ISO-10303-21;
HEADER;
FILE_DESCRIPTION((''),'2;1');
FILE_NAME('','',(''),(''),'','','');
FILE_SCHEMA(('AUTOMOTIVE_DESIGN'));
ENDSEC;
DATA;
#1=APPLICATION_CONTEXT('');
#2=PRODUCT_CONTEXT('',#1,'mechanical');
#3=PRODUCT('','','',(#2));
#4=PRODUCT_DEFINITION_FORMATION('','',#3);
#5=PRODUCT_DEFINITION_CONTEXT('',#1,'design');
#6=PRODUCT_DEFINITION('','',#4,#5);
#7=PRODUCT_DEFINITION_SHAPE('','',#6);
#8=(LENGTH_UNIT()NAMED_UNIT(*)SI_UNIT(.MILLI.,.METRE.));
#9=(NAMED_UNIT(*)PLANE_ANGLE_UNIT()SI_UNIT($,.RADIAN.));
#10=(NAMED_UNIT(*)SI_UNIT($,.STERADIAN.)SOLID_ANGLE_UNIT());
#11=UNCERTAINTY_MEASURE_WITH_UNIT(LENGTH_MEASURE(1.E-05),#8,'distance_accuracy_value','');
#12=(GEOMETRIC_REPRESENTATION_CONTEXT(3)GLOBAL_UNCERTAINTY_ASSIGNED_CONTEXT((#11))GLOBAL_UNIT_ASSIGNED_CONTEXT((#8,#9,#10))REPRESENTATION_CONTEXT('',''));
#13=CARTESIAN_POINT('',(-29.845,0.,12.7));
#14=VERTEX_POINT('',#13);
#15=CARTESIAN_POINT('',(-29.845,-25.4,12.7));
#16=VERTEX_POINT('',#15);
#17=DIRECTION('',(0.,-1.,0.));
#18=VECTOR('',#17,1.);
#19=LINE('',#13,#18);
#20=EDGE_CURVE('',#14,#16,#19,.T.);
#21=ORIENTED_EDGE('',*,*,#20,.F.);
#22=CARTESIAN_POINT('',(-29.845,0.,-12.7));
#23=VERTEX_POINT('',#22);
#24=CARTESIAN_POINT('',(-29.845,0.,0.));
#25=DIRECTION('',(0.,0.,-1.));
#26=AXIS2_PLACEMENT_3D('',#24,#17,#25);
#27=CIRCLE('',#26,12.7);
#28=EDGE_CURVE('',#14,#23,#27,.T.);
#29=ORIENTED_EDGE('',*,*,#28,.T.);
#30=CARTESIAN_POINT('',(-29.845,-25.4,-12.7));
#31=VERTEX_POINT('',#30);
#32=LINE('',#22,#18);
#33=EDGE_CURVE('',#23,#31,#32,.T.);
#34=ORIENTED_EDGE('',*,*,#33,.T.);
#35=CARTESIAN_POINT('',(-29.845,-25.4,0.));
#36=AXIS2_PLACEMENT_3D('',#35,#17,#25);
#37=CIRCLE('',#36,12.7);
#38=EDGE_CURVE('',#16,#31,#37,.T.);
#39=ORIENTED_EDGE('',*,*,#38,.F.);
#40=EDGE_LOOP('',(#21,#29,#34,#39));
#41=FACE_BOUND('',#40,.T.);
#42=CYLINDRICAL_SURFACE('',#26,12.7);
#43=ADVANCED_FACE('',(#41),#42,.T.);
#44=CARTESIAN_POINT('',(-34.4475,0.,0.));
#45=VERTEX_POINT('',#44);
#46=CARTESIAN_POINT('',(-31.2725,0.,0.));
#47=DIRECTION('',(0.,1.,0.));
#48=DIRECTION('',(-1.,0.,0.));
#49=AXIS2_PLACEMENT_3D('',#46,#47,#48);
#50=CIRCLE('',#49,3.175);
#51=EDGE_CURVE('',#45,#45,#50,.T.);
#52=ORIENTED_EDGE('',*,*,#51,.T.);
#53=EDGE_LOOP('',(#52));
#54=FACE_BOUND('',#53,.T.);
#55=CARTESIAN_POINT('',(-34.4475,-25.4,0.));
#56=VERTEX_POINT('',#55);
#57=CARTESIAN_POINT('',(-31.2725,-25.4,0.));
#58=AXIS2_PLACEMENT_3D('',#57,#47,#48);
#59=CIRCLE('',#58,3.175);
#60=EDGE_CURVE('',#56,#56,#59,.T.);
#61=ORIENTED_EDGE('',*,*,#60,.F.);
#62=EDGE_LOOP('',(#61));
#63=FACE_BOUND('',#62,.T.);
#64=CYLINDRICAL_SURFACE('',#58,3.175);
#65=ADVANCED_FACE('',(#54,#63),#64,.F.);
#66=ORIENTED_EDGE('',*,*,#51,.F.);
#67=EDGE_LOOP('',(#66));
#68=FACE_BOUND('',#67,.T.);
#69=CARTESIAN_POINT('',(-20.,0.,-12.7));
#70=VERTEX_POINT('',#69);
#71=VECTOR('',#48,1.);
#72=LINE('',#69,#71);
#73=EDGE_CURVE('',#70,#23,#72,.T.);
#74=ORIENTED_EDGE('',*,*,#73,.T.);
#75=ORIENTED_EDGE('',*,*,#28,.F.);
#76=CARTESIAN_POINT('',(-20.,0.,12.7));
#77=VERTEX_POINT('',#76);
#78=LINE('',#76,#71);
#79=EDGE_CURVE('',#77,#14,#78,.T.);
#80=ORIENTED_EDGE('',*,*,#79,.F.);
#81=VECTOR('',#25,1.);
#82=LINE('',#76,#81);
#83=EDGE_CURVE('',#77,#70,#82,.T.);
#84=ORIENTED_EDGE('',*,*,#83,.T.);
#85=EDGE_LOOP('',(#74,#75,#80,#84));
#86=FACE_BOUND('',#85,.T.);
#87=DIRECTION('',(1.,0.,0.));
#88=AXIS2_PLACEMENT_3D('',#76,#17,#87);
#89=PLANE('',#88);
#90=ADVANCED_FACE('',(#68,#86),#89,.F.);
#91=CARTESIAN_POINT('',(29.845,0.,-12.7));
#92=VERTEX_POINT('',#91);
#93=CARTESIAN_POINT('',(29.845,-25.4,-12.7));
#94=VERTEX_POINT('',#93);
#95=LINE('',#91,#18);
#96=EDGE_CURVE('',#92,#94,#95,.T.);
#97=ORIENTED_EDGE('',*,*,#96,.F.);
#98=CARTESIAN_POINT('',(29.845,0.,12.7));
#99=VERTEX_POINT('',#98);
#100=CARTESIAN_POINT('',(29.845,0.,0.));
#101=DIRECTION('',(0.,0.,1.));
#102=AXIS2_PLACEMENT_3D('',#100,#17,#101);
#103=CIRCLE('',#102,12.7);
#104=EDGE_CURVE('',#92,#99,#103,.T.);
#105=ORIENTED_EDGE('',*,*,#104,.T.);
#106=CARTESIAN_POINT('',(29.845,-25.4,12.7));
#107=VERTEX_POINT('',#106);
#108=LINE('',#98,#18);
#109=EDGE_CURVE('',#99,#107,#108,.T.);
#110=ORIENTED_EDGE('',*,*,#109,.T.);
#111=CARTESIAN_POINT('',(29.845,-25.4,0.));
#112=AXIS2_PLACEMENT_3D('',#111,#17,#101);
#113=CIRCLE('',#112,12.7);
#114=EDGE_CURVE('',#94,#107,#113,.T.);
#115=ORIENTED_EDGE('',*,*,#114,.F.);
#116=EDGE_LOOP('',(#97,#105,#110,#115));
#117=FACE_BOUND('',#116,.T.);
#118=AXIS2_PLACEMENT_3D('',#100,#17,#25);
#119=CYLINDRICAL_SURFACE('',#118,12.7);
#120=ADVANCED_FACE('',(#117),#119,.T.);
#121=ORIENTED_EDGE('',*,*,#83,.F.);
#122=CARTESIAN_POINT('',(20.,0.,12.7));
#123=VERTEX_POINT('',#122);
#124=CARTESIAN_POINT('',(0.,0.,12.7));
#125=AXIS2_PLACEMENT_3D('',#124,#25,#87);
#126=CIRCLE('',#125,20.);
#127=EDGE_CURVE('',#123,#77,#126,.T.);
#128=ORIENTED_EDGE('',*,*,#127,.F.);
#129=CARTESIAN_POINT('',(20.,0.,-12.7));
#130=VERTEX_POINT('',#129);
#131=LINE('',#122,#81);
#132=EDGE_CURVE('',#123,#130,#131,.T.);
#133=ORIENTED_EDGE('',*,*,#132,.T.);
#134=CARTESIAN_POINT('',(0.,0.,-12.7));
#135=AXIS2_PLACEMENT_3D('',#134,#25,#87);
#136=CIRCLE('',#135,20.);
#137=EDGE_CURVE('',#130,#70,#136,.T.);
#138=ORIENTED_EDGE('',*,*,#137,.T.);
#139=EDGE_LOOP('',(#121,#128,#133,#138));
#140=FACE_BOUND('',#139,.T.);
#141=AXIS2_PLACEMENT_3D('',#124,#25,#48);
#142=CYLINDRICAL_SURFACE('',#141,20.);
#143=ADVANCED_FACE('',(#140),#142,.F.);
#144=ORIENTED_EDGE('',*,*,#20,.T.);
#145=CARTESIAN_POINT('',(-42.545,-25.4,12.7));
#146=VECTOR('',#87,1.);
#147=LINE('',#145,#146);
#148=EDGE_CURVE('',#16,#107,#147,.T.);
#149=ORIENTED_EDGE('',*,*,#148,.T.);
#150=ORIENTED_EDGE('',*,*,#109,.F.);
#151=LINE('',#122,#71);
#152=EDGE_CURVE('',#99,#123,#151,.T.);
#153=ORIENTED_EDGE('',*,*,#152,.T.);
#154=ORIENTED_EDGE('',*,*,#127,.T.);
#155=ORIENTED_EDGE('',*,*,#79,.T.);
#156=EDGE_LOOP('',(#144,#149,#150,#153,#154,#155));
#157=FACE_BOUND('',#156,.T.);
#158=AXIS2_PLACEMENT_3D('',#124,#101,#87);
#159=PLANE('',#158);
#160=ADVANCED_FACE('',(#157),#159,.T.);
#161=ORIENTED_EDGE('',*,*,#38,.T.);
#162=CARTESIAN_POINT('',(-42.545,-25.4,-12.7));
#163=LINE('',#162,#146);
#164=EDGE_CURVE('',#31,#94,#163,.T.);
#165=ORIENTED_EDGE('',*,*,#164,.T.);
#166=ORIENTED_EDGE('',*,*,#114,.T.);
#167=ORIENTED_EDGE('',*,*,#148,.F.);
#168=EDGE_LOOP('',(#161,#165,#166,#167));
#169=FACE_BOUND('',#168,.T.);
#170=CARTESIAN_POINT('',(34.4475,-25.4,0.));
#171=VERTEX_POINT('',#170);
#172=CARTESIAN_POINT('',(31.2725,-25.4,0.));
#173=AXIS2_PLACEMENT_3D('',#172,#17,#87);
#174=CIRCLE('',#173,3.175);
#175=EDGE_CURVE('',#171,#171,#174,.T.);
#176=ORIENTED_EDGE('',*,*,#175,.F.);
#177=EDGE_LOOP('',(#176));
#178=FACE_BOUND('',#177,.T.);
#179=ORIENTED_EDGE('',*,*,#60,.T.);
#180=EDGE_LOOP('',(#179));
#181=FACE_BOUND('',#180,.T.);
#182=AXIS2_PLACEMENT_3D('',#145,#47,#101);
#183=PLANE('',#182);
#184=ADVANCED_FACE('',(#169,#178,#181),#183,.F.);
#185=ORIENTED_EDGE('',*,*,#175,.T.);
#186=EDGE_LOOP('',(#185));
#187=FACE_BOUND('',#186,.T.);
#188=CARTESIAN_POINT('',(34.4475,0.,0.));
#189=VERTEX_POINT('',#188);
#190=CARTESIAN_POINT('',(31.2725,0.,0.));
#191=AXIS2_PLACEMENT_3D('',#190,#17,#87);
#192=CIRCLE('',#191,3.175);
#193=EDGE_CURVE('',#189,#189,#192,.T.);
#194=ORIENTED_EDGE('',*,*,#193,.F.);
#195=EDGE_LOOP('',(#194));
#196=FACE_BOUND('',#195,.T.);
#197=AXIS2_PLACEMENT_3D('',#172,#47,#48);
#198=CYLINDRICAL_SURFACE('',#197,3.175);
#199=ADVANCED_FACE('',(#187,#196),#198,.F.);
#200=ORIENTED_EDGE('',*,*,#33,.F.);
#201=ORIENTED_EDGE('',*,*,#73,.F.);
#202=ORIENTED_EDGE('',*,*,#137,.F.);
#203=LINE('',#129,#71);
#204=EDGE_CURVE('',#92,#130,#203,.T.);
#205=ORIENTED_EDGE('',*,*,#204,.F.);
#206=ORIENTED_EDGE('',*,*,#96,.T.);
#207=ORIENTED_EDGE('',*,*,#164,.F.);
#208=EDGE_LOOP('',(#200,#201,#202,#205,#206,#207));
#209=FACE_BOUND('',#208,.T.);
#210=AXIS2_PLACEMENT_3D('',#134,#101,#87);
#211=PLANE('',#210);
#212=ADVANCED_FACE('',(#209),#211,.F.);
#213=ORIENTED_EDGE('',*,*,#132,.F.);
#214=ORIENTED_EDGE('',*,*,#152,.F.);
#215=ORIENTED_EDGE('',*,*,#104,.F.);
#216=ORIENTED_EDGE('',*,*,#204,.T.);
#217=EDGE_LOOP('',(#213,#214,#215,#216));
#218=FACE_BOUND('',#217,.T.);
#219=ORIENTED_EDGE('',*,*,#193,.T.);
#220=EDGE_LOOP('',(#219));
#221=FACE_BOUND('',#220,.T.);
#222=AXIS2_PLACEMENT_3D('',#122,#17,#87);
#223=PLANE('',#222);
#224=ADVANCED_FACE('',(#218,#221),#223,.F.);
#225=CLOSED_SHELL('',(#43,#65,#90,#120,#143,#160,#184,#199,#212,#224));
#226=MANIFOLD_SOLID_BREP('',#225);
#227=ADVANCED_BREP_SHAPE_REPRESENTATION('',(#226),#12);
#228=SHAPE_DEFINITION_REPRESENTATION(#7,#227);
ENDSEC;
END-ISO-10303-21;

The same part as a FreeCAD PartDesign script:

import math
import FreeCAD as App
import Part
import Sketcher

V = App.Vector
Q = App.Units.Quantity


def add_polygon(sketch, points):
    """Adds a closed chain of lines whose ends are joined by coincident constraints."""
    first, n = sketch.GeometryCount, len(points)
    for a, b in zip(points, points[1:] + points[:1]):
        sketch.addGeometry(Part.LineSegment(App.Vector(*a, 0), App.Vector(*b, 0)), False)
    for i in range(n):
        sketch.addConstraint(Sketcher.Constraint("Coincident", first + i, 2, first + (i + 1) % n, 1))

doc = App.newDocument("Part")
body = doc.addObject("PartDesign::Body", "Body")

# Sketch on XY plane
sketch1 = body.newObject("Sketcher::SketchObject", "Sketch")
sketch1.AttachmentSupport = (doc.getObject("XY_Plane"), [""])
sketch1.MapMode = "FlatFace"
sketch1.addGeometry([
    Part.LineSegment(V(-20, 0, 0), V(-42.545, 0, 0)),  # 0
    Part.LineSegment(V(-42.545, 0, 0), V(-42.545, -25.4, 0)),  # 1
    Part.LineSegment(V(-42.545, -25.4, 0), V(42.545, -25.4, 0)),  # 2
    Part.LineSegment(V(42.545, -25.4, 0), V(42.545, 0, 0)),  # 3
    Part.LineSegment(V(42.545, 0, 0), V(20, 0, 0)),  # 4
    Part.ArcOfCircle(Part.Circle(V(0, 0, 0), V(0, 0, 1), 20), math.radians(180), math.radians(360)),  # 5
], False)
sketch1.addConstraint([
    Sketcher.Constraint("Coincident", 0, 2, 1, 1),
    Sketcher.Constraint("Coincident", 1, 2, 2, 1),
    Sketcher.Constraint("Coincident", 2, 2, 3, 1),
    Sketcher.Constraint("Coincident", 3, 2, 4, 1),
    Sketcher.Constraint("Coincident", 4, 2, 5, 2),
    Sketcher.Constraint("Coincident", 5, 1, 0, 1),
    Sketcher.Constraint("Horizontal", 0),
    Sketcher.Constraint("Vertical", 1),
    Sketcher.Constraint("Horizontal", 2),
    Sketcher.Constraint("Vertical", 3),
    Sketcher.Constraint("Horizontal", 4),
    Sketcher.Constraint("Coincident", 5, 3, -1, 1),
    Sketcher.Constraint("Symmetric", 0, 2, 3, 2, -1, 1),
    Sketcher.Constraint("PointOnObject", 0, 2, -1),
    Sketcher.Constraint("DistanceY", 1, 2, 1, 1, Q("1 in")),
    Sketcher.Constraint("DistanceX", 2, 1, 2, 2, Q("3.35 in")),
    Sketcher.Constraint("Radius", 5, 20.0),
])
pad1 = body.newObject("PartDesign::Pad", "Pad")
pad1.Profile = sketch1
pad1.Length = Q("1 in")
pad1.Midplane = True

# Sketch on XZ plane
sketch2 = body.newObject("Sketcher::SketchObject", "Sketch001")
sketch2.AttachmentSupport = (doc.getObject("XZ_Plane"), [""])
sketch2.MapMode = "FlatFace"
sketch2.addGeometry(Part.Circle(V(-31.2725, 0, 0), V(0, 0, 1), 3.175), False)
sketch2.addConstraint([
    Sketcher.Constraint("PointOnObject", 0, 3, -1),
    Sketcher.Constraint("Diameter", 0, Q("0.25 in")),
    Sketcher.Constraint("DistanceX", 0, 3, -1, 1, 31.2725),
])
pocket1 = body.newObject("PartDesign::Pocket", "Pocket")
pocket1.Profile = sketch2
pocket1.Type = "ThroughAll"
pocket1.Reversed = True
doc.recompute()

mirrored = body.newObject("PartDesign::Mirrored", "Mirrored")
mirrored.Originals = [pocket1]
mirrored.MirrorPlane = (doc.getObject("YZ_Plane"), [""])
body.Tip = mirrored

# Sketch on XZ plane
sketch3 = body.newObject("Sketcher::SketchObject", "Sketch002")
sketch3.AttachmentSupport = (doc.getObject("XZ_Plane"), [""])
sketch3.MapMode = "FlatFace"
sketch3.AttachmentOffset = App.Placement(V(0, 0, 1 * 25.4), App.Rotation())
add_polygon(sketch3, [(-52.781, 22.936), (-52.781, -22.936), (52.781, -22.936), (52.781, 22.936)])  # lines 0-3
sketch3.addGeometry(Part.ArcOfCircle(Part.Circle(V(-29.845, 0, 0), V(0, 0, 1), 12.7), math.radians(90), math.radians(270)), False)  # 4
sketch3.addGeometry(Part.LineSegment(V(-29.845, 12.7, 0), V(29.845, 12.7, 0)), False)  # 5
sketch3.addGeometry(Part.ArcOfCircle(Part.Circle(V(29.845, 0, 0), V(0, 0, 1), 12.7), math.radians(-90), math.radians(90)), False)  # 6
sketch3.addGeometry(Part.LineSegment(V(29.845, -12.7, 0), V(-29.845, -12.7, 0)), False)  # 7
sketch3.addConstraint([
    Sketcher.Constraint("Tangent", 4, 1, 5, 1),
    Sketcher.Constraint("Tangent", 5, 2, 6, 2),
    Sketcher.Constraint("Tangent", 6, 1, 7, 1),
    Sketcher.Constraint("Tangent", 7, 2, 4, 2),
    Sketcher.Constraint("Vertical", 0),
    Sketcher.Constraint("Horizontal", 1),
    Sketcher.Constraint("Vertical", 2),
    Sketcher.Constraint("Horizontal", 3),
    Sketcher.Constraint("Horizontal", 5),
    Sketcher.Constraint("Horizontal", 7),
    Sketcher.Constraint("Symmetric", 4, 3, 6, 3, -1, 1),
    Sketcher.Constraint("Symmetric", 0, 2, 2, 2, -1, 1),
    Sketcher.Constraint("Radius", 4, Q("0.5 in")),
    Sketcher.Constraint("DistanceX", 5, 1, 5, 2, Q("2.35 in")),
    Sketcher.Constraint("DistanceX", 1, 1, 1, 2, 105.562),
    Sketcher.Constraint("DistanceY", 0, 2, 0, 1, 45.872),
])
pocket2 = body.newObject("PartDesign::Pocket", "Pocket001")
pocket2.Profile = sketch3
pocket2.Length = Q("1 in")

doc.recompute()
